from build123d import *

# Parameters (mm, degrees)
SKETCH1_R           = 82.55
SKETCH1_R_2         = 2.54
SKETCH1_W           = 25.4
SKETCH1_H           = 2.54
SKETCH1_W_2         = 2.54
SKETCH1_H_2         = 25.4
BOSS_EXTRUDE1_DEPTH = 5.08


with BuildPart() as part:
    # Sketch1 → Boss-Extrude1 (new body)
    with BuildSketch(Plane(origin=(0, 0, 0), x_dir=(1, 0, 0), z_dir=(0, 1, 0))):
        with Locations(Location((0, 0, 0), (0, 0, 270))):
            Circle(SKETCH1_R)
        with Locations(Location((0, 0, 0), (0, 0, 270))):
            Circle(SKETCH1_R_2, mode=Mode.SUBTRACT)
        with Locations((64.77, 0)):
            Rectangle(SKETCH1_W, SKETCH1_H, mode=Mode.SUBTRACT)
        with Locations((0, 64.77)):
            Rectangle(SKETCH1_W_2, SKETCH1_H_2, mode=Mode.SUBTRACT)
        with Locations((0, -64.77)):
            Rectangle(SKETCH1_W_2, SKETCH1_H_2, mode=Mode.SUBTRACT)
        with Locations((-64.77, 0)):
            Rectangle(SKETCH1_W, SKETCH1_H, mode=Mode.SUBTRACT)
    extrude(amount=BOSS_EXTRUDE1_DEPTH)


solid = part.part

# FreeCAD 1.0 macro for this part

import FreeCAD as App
import Part
import Sketcher
from FreeCAD import Vector
Q = App.Units.Quantity

doc = App.newDocument("Part")
body = doc.addObject("PartDesign::Body", "Body")

sketch1 = doc.addObject("Sketcher::SketchObject", "Sketch")
body.addObject(sketch1)
sketch1.AttachmentSupport = (doc.XZ_Plane, [""])
sketch1.MapMode = "FlatFace"
sketch1.addGeometry(Part.Circle(Vector(0, 0, 0), Vector(0, 0, 1), 82.5), False)
sketch1.addGeometry(Part.LineSegment(Vector(1.3, -52.1, 0), Vector(-1.3, -52.1, 0)), False)
sketch1.addGeometry(Part.LineSegment(Vector(-1.3, -52.1, 0), Vector(-1.3, -77.5, 0)), False)
sketch1.addGeometry(Part.LineSegment(Vector(-1.3, -77.5, 0), Vector(1.3, -77.5, 0)), False)
sketch1.addGeometry(Part.LineSegment(Vector(1.3, -77.5, 0), Vector(1.3, -52.1, 0)), False)
sketch1.addGeometry(Part.LineSegment(Vector(-52.1, 1.3, 0), Vector(-77.5, 1.3, 0)), False)
sketch1.addGeometry(Part.LineSegment(Vector(-77.5, 1.3, 0), Vector(-77.5, -1.3, 0)), False)
sketch1.addGeometry(Part.LineSegment(Vector(-77.5, -1.3, 0), Vector(-52.1, -1.3, 0)), False)
sketch1.addGeometry(Part.LineSegment(Vector(-52.1, -1.3, 0), Vector(-52.1, 1.3, 0)), False)
sketch1.addGeometry(Part.LineSegment(Vector(77.5, 1.3, 0), Vector(52.1, 1.3, 0)), False)
sketch1.addGeometry(Part.LineSegment(Vector(52.1, 1.3, 0), Vector(52.1, -1.3, 0)), False)
sketch1.addGeometry(Part.LineSegment(Vector(52.1, -1.3, 0), Vector(77.5, -1.3, 0)), False)
sketch1.addGeometry(Part.LineSegment(Vector(77.5, -1.3, 0), Vector(77.5, 1.3, 0)), False)
sketch1.addGeometry(Part.Circle(Vector(0, 0, 0), Vector(0, 0, 1), 2.5), False)
sketch1.addGeometry(Part.LineSegment(Vector(1.3, 77.5, 0), Vector(-1.3, 77.5, 0)), False)
sketch1.addGeometry(Part.LineSegment(Vector(-1.3, 77.5, 0), Vector(-1.3, 52.1, 0)), False)
sketch1.addGeometry(Part.LineSegment(Vector(-1.3, 52.1, 0), Vector(1.3, 52.1, 0)), False)
sketch1.addGeometry(Part.LineSegment(Vector(1.3, 52.1, 0), Vector(1.3, 77.5, 0)), False)
sketch1.addConstraint(Sketcher.Constraint("Coincident", 1, 2, 2, 1))
sketch1.addConstraint(Sketcher.Constraint("Coincident", 2, 2, 3, 1))
sketch1.addConstraint(Sketcher.Constraint("Coincident", 3, 2, 4, 1))
sketch1.addConstraint(Sketcher.Constraint("Coincident", 4, 2, 1, 1))
sketch1.addConstraint(Sketcher.Constraint("Coincident", 5, 2, 6, 1))
sketch1.addConstraint(Sketcher.Constraint("Coincident", 6, 2, 7, 1))
sketch1.addConstraint(Sketcher.Constraint("Coincident", 7, 2, 8, 1))
sketch1.addConstraint(Sketcher.Constraint("Coincident", 8, 2, 5, 1))
sketch1.addConstraint(Sketcher.Constraint("Coincident", 9, 2, 10, 1))
sketch1.addConstraint(Sketcher.Constraint("Coincident", 10, 2, 11, 1))
sketch1.addConstraint(Sketcher.Constraint("Coincident", 11, 2, 12, 1))
sketch1.addConstraint(Sketcher.Constraint("Coincident", 12, 2, 9, 1))
sketch1.addConstraint(Sketcher.Constraint("Coincident", 14, 2, 15, 1))
sketch1.addConstraint(Sketcher.Constraint("Coincident", 15, 2, 16, 1))
sketch1.addConstraint(Sketcher.Constraint("Coincident", 16, 2, 17, 1))
sketch1.addConstraint(Sketcher.Constraint("Coincident", 17, 2, 14, 1))
sketch1.addConstraint(Sketcher.Constraint("Horizontal", 1))
sketch1.addConstraint(Sketcher.Constraint("Vertical", 2))
sketch1.addConstraint(Sketcher.Constraint("Horizontal", 3))
sketch1.addConstraint(Sketcher.Constraint("Vertical", 4))
sketch1.addConstraint(Sketcher.Constraint("Horizontal", 5))
sketch1.addConstraint(Sketcher.Constraint("Vertical", 6))
sketch1.addConstraint(Sketcher.Constraint("Horizontal", 7))
sketch1.addConstraint(Sketcher.Constraint("Vertical", 8))
sketch1.addConstraint(Sketcher.Constraint("Horizontal", 9))
sketch1.addConstraint(Sketcher.Constraint("Vertical", 10))
sketch1.addConstraint(Sketcher.Constraint("Horizontal", 11))
sketch1.addConstraint(Sketcher.Constraint("Vertical", 12))
sketch1.addConstraint(Sketcher.Constraint("Horizontal", 14))
sketch1.addConstraint(Sketcher.Constraint("Vertical", 15))
sketch1.addConstraint(Sketcher.Constraint("Horizontal", 16))
sketch1.addConstraint(Sketcher.Constraint("Vertical", 17))
sketch1.addConstraint(Sketcher.Constraint("Coincident", 0, 3, -1, 1))
sketch1.addConstraint(Sketcher.Constraint("Coincident", 13, 3, -1, 1))
sketch1.addConstraint(Sketcher.Constraint("Symmetric", 7, 2, 9, 2, -1, 1))
sketch1.addConstraint(Sketcher.Constraint("Symmetric", 5, 2, 11, 2, -1, 1))
sketch1.addConstraint(Sketcher.Constraint("Symmetric", 3, 2, 14, 2, -1, 1))
sketch1.addConstraint(Sketcher.Constraint("Symmetric", 1, 2, 16, 2, -1, 1))
sketch1.addConstraint(Sketcher.Constraint("Horizontal", 8, 2, 9, 2))
sketch1.addConstraint(Sketcher.Constraint("Vertical", 2, 2, 14, 2))
sketch1.addConstraint(Sketcher.Constraint("Equal", 11, 2))
sketch1.addConstraint(Sketcher.Constraint("Equal", 16, 6))
sketch1.addConstraint(Sketcher.Constraint("Diameter", 0, Q("6.5 in")))
sketch1.addConstraint(Sketcher.Constraint("Diameter", 13, Q("0.2 in")))
sketch1.addConstraint(Sketcher.Constraint("DistanceX", 5, 2, 5, 1, Q("1 in")))
sketch1.addConstraint(Sketcher.Constraint("DistanceX", 1, 2, 1, 1, Q("0.1 in")))
sketch1.addConstraint(Sketcher.Constraint("DistanceX", 5, 2, 1, 2, Q("3 in")))
sketch1.addConstraint(Sketcher.Constraint("DistanceY", 1, 2, 6, 2, Q("2 in")))
pad1 = doc.addObject("PartDesign::Pad", "Pad")
body.addObject(pad1)
pad1.Profile = sketch1
pad1.Length = Q("0.2 in")
pad1.Reversed = True

doc.recompute()
